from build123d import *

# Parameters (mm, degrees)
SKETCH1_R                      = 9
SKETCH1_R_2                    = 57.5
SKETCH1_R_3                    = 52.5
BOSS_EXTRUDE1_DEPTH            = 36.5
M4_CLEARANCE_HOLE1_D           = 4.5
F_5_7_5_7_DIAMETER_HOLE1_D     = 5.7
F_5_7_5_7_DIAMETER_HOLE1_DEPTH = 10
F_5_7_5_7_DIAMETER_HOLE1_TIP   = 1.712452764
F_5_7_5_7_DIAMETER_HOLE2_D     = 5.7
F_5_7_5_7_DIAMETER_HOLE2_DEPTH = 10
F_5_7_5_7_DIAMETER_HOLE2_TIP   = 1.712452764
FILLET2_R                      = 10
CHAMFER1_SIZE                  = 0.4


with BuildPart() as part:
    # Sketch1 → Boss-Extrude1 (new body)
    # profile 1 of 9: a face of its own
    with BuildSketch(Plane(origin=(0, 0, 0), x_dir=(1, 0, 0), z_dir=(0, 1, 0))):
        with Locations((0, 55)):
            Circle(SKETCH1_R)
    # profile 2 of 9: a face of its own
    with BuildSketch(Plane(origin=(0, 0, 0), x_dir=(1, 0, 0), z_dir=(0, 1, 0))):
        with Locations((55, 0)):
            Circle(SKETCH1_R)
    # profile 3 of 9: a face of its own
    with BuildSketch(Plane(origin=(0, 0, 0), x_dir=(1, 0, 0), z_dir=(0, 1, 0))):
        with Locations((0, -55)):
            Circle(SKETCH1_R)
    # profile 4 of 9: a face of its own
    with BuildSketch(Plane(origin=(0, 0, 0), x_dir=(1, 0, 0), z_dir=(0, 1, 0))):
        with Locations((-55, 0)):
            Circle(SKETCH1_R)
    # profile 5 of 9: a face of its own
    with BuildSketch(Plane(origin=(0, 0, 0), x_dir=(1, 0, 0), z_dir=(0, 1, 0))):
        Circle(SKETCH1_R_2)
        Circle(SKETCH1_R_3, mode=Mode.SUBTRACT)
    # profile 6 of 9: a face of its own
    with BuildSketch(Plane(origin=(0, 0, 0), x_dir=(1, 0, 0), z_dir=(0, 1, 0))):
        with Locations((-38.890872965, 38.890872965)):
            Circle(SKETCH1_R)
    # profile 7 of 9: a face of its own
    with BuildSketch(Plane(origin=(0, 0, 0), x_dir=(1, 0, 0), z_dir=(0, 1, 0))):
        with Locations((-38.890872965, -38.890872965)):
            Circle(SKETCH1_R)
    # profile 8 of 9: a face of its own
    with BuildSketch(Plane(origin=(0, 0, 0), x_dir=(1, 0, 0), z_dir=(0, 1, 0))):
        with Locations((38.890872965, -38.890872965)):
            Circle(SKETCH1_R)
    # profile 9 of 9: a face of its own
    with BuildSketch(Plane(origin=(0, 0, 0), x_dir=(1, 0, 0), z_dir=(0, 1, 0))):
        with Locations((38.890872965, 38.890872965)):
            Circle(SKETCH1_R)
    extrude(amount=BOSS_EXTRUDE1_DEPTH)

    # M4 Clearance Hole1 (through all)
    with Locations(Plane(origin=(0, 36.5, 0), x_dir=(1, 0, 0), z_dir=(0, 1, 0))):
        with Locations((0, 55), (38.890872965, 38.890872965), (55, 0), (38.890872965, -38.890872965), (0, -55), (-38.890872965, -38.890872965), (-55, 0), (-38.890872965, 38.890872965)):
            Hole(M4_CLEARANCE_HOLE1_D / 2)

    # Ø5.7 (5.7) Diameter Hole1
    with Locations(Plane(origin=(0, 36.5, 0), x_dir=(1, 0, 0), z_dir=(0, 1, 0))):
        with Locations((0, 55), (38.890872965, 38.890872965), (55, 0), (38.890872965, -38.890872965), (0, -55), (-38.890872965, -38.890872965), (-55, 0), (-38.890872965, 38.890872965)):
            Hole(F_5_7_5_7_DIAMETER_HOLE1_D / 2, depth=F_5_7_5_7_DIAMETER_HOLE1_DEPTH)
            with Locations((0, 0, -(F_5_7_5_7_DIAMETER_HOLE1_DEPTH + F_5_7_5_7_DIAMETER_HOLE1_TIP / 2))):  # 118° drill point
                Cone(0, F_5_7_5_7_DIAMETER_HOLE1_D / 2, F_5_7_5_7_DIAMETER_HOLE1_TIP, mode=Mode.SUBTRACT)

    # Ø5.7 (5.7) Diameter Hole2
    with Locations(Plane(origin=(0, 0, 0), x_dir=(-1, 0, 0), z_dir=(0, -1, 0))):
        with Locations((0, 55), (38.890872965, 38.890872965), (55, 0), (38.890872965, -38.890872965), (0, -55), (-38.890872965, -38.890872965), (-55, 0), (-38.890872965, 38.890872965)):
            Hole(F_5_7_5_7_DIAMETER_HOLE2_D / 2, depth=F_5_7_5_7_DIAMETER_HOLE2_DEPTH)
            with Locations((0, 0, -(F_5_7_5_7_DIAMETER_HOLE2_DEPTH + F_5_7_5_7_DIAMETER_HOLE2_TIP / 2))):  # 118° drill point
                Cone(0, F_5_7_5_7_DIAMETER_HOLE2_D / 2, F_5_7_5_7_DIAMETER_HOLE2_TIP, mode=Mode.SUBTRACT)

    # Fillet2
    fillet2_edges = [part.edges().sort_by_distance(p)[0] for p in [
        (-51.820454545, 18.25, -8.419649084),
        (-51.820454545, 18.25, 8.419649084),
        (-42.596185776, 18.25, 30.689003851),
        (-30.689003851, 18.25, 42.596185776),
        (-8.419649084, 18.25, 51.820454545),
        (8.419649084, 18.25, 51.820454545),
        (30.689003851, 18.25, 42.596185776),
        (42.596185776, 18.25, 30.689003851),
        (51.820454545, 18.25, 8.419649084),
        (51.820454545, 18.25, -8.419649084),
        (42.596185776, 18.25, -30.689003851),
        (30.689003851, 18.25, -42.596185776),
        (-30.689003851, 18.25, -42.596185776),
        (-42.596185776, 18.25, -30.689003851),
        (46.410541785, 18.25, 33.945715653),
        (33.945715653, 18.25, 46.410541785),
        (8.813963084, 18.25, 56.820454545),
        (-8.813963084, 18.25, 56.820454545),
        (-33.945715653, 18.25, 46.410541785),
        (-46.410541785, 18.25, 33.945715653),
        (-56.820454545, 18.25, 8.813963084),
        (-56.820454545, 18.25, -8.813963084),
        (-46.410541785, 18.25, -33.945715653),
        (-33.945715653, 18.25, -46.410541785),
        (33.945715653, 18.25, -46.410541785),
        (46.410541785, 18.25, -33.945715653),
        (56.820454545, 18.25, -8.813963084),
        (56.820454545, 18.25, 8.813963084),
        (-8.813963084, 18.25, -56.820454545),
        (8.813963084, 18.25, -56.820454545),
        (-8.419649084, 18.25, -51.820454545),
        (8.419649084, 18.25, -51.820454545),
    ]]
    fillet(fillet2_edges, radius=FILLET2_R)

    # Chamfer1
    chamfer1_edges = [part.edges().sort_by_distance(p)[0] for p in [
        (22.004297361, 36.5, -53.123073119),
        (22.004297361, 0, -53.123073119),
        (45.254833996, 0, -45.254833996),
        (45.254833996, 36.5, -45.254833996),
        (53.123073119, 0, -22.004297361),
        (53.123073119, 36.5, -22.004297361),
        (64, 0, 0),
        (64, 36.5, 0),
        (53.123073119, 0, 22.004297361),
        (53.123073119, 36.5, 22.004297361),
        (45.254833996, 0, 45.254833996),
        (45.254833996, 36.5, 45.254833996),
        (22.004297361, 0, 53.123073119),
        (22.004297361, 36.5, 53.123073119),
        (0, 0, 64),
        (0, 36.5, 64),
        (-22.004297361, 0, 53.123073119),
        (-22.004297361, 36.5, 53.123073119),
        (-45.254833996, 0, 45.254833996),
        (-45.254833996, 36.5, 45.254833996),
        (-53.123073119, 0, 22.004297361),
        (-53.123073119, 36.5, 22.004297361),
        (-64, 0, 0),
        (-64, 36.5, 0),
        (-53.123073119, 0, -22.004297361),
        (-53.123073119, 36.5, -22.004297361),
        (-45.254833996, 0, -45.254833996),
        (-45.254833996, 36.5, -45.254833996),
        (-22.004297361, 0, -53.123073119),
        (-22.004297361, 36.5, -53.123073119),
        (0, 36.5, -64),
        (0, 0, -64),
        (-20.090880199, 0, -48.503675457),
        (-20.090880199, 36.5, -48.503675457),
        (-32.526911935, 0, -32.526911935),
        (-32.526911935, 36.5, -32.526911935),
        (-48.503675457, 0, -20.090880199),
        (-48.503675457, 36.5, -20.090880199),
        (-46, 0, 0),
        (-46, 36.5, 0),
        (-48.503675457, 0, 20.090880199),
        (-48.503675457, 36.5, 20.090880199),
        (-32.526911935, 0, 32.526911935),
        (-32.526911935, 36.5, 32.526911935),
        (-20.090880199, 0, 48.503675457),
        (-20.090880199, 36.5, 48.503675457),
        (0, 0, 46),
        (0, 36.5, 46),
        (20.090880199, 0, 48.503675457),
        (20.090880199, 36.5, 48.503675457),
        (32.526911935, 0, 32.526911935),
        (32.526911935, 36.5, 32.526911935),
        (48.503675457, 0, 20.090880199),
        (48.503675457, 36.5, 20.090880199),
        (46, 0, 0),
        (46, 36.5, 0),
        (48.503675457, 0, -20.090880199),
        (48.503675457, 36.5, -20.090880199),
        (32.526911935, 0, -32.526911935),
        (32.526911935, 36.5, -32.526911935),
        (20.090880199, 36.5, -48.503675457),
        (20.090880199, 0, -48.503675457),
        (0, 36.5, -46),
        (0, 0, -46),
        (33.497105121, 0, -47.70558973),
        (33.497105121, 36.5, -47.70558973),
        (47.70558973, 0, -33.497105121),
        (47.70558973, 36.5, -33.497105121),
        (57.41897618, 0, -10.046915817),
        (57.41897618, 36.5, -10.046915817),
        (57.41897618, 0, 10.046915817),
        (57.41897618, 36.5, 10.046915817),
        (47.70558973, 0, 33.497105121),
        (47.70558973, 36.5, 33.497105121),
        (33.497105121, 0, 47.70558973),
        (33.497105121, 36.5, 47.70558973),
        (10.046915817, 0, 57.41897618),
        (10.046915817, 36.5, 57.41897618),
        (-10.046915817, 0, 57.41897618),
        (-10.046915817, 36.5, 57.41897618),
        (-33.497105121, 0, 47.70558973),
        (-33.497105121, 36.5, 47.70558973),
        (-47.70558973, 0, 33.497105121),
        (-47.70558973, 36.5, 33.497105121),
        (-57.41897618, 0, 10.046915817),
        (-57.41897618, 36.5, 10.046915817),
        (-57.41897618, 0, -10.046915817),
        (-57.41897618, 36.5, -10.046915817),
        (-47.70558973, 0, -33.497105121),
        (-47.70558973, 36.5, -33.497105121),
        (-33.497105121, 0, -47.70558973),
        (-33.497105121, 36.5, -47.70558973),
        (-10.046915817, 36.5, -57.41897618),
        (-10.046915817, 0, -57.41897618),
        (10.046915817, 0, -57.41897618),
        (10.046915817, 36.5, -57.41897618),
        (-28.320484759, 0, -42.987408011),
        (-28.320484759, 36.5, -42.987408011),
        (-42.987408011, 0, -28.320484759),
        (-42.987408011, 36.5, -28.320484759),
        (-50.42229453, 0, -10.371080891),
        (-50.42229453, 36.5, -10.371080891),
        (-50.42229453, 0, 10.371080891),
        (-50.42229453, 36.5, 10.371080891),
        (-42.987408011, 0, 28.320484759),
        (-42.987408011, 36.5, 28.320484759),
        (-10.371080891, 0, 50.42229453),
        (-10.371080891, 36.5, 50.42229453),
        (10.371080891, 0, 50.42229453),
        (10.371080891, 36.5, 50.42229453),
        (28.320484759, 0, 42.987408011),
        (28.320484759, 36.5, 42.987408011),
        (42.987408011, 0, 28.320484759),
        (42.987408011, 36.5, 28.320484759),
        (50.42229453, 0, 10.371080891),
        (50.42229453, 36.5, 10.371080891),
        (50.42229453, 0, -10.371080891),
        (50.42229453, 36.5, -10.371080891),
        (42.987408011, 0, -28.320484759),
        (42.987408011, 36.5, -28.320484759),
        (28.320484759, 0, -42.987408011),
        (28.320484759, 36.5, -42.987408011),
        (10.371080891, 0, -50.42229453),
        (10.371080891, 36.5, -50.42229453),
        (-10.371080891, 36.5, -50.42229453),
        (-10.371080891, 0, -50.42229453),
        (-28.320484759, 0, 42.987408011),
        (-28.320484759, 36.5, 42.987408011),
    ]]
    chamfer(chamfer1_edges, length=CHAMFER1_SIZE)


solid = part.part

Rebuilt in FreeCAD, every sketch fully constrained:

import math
import FreeCAD as App
import Part
import Sketcher

V = App.Vector
Q = App.Units.Quantity


def edges_at(feature, points):
    """Names of the edges that pass closest to the given points."""
    edges = feature.Shape.Edges
    near = lambda p: min(range(len(edges)), key=lambda i: edges[i].distToShape(Part.Vertex(*p))[0])
    return sorted({f"Edge{near(p) + 1}" for p in points})

doc = App.newDocument("Part")
body = doc.addObject("PartDesign::Body", "Body")

# Sketch on XZ plane
sketch1 = body.newObject("Sketcher::SketchObject", "Sketch")
sketch1.AttachmentSupport = (doc.getObject("XZ_Plane"), [""])
sketch1.MapMode = "FlatFace"
sketch1.addGeometry(Part.ArcOfCircle(Part.Circle(V(0, 0, 0), V(0, 0, 1), 58), math.radians(-81), math.radians(-54)), False)
sketch1.addGeometry(Part.ArcOfCircle(Part.Circle(V(0, -55, 0), V(0, 0, 1), 9), math.radians(-168), math.radians(-12)), False)
sketch1.addGeometry(Part.ArcOfCircle(Part.Circle(V(0, 0, 0), V(0, 0, 1), 58), math.radians(-126), math.radians(-99)), False)
sketch1.addGeometry(Part.ArcOfCircle(Part.Circle(V(-39, -39, 0), V(0, 0, 1), 9), math.radians(147), math.radians(303)), False)
sketch1.addGeometry(Part.ArcOfCircle(Part.Circle(V(0, 0, 0), V(0, 0, 1), 58), math.radians(-171), math.radians(-144)), False)
sketch1.addGeometry(Part.ArcOfCircle(Part.Circle(V(-55, 0, 0), V(0, 0, 1), 9), math.radians(102), math.radians(258)), False)
sketch1.addGeometry(Part.ArcOfCircle(Part.Circle(V(0, 0, 0), V(0, 0, 1), 58), math.radians(144), math.radians(171)), False)
sketch1.addGeometry(Part.ArcOfCircle(Part.Circle(V(-39, 39, 0), V(0, 0, 1), 9), math.radians(57), math.radians(213)), False)
sketch1.addGeometry(Part.ArcOfCircle(Part.Circle(V(0, 0, 0), V(0, 0, 1), 58), math.radians(99), math.radians(126)), False)
sketch1.addGeometry(Part.ArcOfCircle(Part.Circle(V(0, 55, 0), V(0, 0, 1), 9), math.radians(12), math.radians(168)), False)
sketch1.addGeometry(Part.ArcOfCircle(Part.Circle(V(0, 0, 0), V(0, 0, 1), 58), math.radians(54), math.radians(81)), False)
sketch1.addGeometry(Part.ArcOfCircle(Part.Circle(V(39, 39, 0), V(0, 0, 1), 9), math.radians(-33), math.radians(123)), False)
sketch1.addGeometry(Part.ArcOfCircle(Part.Circle(V(0, 0, 0), V(0, 0, 1), 58), math.radians(9), math.radians(36)), False)
sketch1.addGeometry(Part.ArcOfCircle(Part.Circle(V(55, 0, 0), V(0, 0, 1), 9), math.radians(-78), math.radians(78)), False)
sketch1.addGeometry(Part.ArcOfCircle(Part.Circle(V(0, 0, 0), V(0, 0, 1), 58), math.radians(-36), math.radians(-9)), False)
sketch1.addGeometry(Part.ArcOfCircle(Part.Circle(V(39, -39, 0), V(0, 0, 1), 9), math.radians(-123), math.radians(33)), False)
sketch1.addGeometry(Part.ArcOfCircle(Part.Circle(V(0, 0, 0), V(0, 0, 1), 52), math.radians(-81), math.radians(-54)), False)
sketch1.addGeometry(Part.ArcOfCircle(Part.Circle(V(39, -39, 0), V(0, 0, 1), 9), math.radians(66), math.radians(204)), False)
sketch1.addGeometry(Part.ArcOfCircle(Part.Circle(V(0, 0, 0), V(0, 0, 1), 52), math.radians(-36), math.radians(-9)), False)
sketch1.addGeometry(Part.ArcOfCircle(Part.Circle(V(55, 0, 0), V(0, 0, 1), 9), math.radians(111), math.radians(249)), False)
sketch1.addGeometry(Part.ArcOfCircle(Part.Circle(V(0, 0, 0), V(0, 0, 1), 52), math.radians(9), math.radians(36)), False)
sketch1.addGeometry(Part.ArcOfCircle(Part.Circle(V(39, 39, 0), V(0, 0, 1), 9), math.radians(156), math.radians(294)), False)
sketch1.addGeometry(Part.ArcOfCircle(Part.Circle(V(0, 0, 0), V(0, 0, 1), 52), math.radians(54), math.radians(81)), False)
sketch1.addGeometry(Part.ArcOfCircle(Part.Circle(V(0, 55, 0), V(0, 0, 1), 9), math.radians(-159), math.radians(-21)), False)
sketch1.addGeometry(Part.ArcOfCircle(Part.Circle(V(0, 0, 0), V(0, 0, 1), 52), math.radians(99), math.radians(126)), False)
sketch1.addGeometry(Part.ArcOfCircle(Part.Circle(V(-39, 39, 0), V(0, 0, 1), 9), math.radians(-114), math.radians(24)), False)
sketch1.addGeometry(Part.ArcOfCircle(Part.Circle(V(0, 0, 0), V(0, 0, 1), 52), math.radians(144), math.radians(171)), False)
sketch1.addGeometry(Part.ArcOfCircle(Part.Circle(V(-55, 0, 0), V(0, 0, 1), 9), math.radians(-69), math.radians(69)), False)
sketch1.addGeometry(Part.ArcOfCircle(Part.Circle(V(0, 0, 0), V(0, 0, 1), 52), math.radians(-171), math.radians(-144)), False)
sketch1.addGeometry(Part.ArcOfCircle(Part.Circle(V(-39, -39, 0), V(0, 0, 1), 9), math.radians(-24), math.radians(114)), False)
sketch1.addGeometry(Part.ArcOfCircle(Part.Circle(V(0, 0, 0), V(0, 0, 1), 52), math.radians(-126), math.radians(-99)), False)
sketch1.addGeometry(Part.ArcOfCircle(Part.Circle(V(0, -55, 0), V(0, 0, 1), 9), math.radians(21), math.radians(159)), False)
sketch1.addConstraint(Sketcher.Constraint("Coincident", 0, 1, 1, 2))
sketch1.addConstraint(Sketcher.Constraint("Coincident", 1, 1, 2, 2))
sketch1.addConstraint(Sketcher.Constraint("Coincident", 2, 1, 3, 2))
sketch1.addConstraint(Sketcher.Constraint("Coincident", 3, 1, 4, 2))
sketch1.addConstraint(Sketcher.Constraint("Coincident", 4, 1, 5, 2))
sketch1.addConstraint(Sketcher.Constraint("Coincident", 5, 1, 6, 2))
sketch1.addConstraint(Sketcher.Constraint("Coincident", 6, 1, 7, 2))
sketch1.addConstraint(Sketcher.Constraint("Coincident", 7, 1, 8, 2))
sketch1.addConstraint(Sketcher.Constraint("Coincident", 8, 1, 9, 2))
sketch1.addConstraint(Sketcher.Constraint("Coincident", 9, 1, 10, 2))
sketch1.addConstraint(Sketcher.Constraint("Coincident", 10, 1, 11, 2))
sketch1.addConstraint(Sketcher.Constraint("Coincident", 11, 1, 12, 2))
sketch1.addConstraint(Sketcher.Constraint("Coincident", 12, 1, 13, 2))
sketch1.addConstraint(Sketcher.Constraint("Coincident", 13, 1, 14, 2))
sketch1.addConstraint(Sketcher.Constraint("Coincident", 14, 1, 15, 2))
sketch1.addConstraint(Sketcher.Constraint("Coincident", 15, 1, 0, 2))
sketch1.addConstraint(Sketcher.Constraint("Coincident", 16, 2, 17, 2))
sketch1.addConstraint(Sketcher.Constraint("Coincident", 17, 1, 18, 1))
sketch1.addConstraint(Sketcher.Constraint("Coincident", 18, 2, 19, 2))
sketch1.addConstraint(Sketcher.Constraint("Coincident", 19, 1, 20, 1))
sketch1.addConstraint(Sketcher.Constraint("Coincident", 20, 2, 21, 2))
sketch1.addConstraint(Sketcher.Constraint("Coincident", 21, 1, 22, 1))
sketch1.addConstraint(Sketcher.Constraint("Coincident", 22, 2, 23, 2))
sketch1.addConstraint(Sketcher.Constraint("Coincident", 23, 1, 24, 1))
sketch1.addConstraint(Sketcher.Constraint("Coincident", 24, 2, 25, 2))
sketch1.addConstraint(Sketcher.Constraint("Coincident", 25, 1, 26, 1))
sketch1.addConstraint(Sketcher.Constraint("Coincident", 26, 2, 27, 2))
sketch1.addConstraint(Sketcher.Constraint("Coincident", 27, 1, 28, 1))
sketch1.addConstraint(Sketcher.Constraint("Coincident", 28, 2, 29, 2))
sketch1.addConstraint(Sketcher.Constraint("Coincident", 29, 1, 30, 1))
sketch1.addConstraint(Sketcher.Constraint("Coincident", 30, 2, 31, 2))
sketch1.addConstraint(Sketcher.Constraint("Coincident", 31, 1, 16, 1))
sketch1.addConstraint(Sketcher.Constraint("Coincident", 0, 3, -1, 1))
sketch1.addConstraint(Sketcher.Constraint("Coincident", 2, 3, -1, 1))
sketch1.addConstraint(Sketcher.Constraint("Coincident", 4, 3, -1, 1))
sketch1.addConstraint(Sketcher.Constraint("Coincident", 6, 3, -1, 1))
sketch1.addConstraint(Sketcher.Constraint("Coincident", 8, 3, -1, 1))
sketch1.addConstraint(Sketcher.Constraint("Coincident", 10, 3, -1, 1))
sketch1.addConstraint(Sketcher.Constraint("Coincident", 12, 3, -1, 1))
sketch1.addConstraint(Sketcher.Constraint("Coincident", 14, 3, -1, 1))
sketch1.addConstraint(Sketcher.Constraint("Coincident", 16, 3, -1, 1))
sketch1.addConstraint(Sketcher.Constraint("Coincident", 18, 3, -1, 1))
sketch1.addConstraint(Sketcher.Constraint("Coincident", 20, 3, -1, 1))
sketch1.addConstraint(Sketcher.Constraint("Coincident", 22, 3, -1, 1))
sketch1.addConstraint(Sketcher.Constraint("Coincident", 24, 3, -1, 1))
sketch1.addConstraint(Sketcher.Constraint("Coincident", 26, 3, -1, 1))
sketch1.addConstraint(Sketcher.Constraint("Coincident", 28, 3, -1, 1))
sketch1.addConstraint(Sketcher.Constraint("Coincident", 30, 3, -1, 1))
sketch1.addConstraint(Sketcher.Constraint("Coincident", 17, 3, 15, 3))
sketch1.addConstraint(Sketcher.Constraint("Coincident", 19, 3, 13, 3))
sketch1.addConstraint(Sketcher.Constraint("Coincident", 21, 3, 11, 3))
sketch1.addConstraint(Sketcher.Constraint("Coincident", 23, 3, 9, 3))
sketch1.addConstraint(Sketcher.Constraint("Coincident", 25, 3, 7, 3))
sketch1.addConstraint(Sketcher.Constraint("Coincident", 27, 3, 5, 3))
sketch1.addConstraint(Sketcher.Constraint("Coincident", 29, 3, 3, 3))
sketch1.addConstraint(Sketcher.Constraint("Coincident", 31, 3, 1, 3))
sketch1.addConstraint(Sketcher.Constraint("Equal", 0, 2))
sketch1.addConstraint(Sketcher.Constraint("Equal", 1, 3))
sketch1.addConstraint(Sketcher.Constraint("Equal", 2, 4))
sketch1.addConstraint(Sketcher.Constraint("Equal", 3, 5))
sketch1.addConstraint(Sketcher.Constraint("Equal", 4, 6))
sketch1.addConstraint(Sketcher.Constraint("Equal", 5, 7))
sketch1.addConstraint(Sketcher.Constraint("Equal", 6, 8))
sketch1.addConstraint(Sketcher.Constraint("Equal", 7, 9))
sketch1.addConstraint(Sketcher.Constraint("Equal", 8, 10))
sketch1.addConstraint(Sketcher.Constraint("Equal", 9, 11))
sketch1.addConstraint(Sketcher.Constraint("Equal", 10, 12))
sketch1.addConstraint(Sketcher.Constraint("Equal", 11, 13))
sketch1.addConstraint(Sketcher.Constraint("Equal", 12, 14))
sketch1.addConstraint(Sketcher.Constraint("Equal", 13, 15))
sketch1.addConstraint(Sketcher.Constraint("Equal", 15, 17))
sketch1.addConstraint(Sketcher.Constraint("Equal", 16, 18))
sketch1.addConstraint(Sketcher.Constraint("Equal", 17, 19))
sketch1.addConstraint(Sketcher.Constraint("Equal", 18, 20))
sketch1.addConstraint(Sketcher.Constraint("Equal", 19, 21))
sketch1.addConstraint(Sketcher.Constraint("Equal", 20, 22))
sketch1.addConstraint(Sketcher.Constraint("Equal", 21, 23))
sketch1.addConstraint(Sketcher.Constraint("Equal", 22, 24))
sketch1.addConstraint(Sketcher.Constraint("Equal", 23, 25))
sketch1.addConstraint(Sketcher.Constraint("Equal", 24, 26))
sketch1.addConstraint(Sketcher.Constraint("Equal", 25, 27))
sketch1.addConstraint(Sketcher.Constraint("Equal", 26, 28))
sketch1.addConstraint(Sketcher.Constraint("Equal", 27, 29))
sketch1.addConstraint(Sketcher.Constraint("Equal", 28, 30))
sketch1.addConstraint(Sketcher.Constraint("Equal", 29, 31))
sketch1.addConstraint(Sketcher.Constraint("Symmetric", 1, 3, 9, 3, -1, 1))
sketch1.addConstraint(Sketcher.Constraint("Symmetric", 3, 3, 11, 3, -1, 1))
sketch1.addConstraint(Sketcher.Constraint("Symmetric", 5, 3, 13, 3, -1, 1))
sketch1.addConstraint(Sketcher.Constraint("Symmetric", 7, 3, 15, 3, -1, 1))
sketch1.addConstraint(Sketcher.Constraint("Symmetric", 7, 3, 11, 3, -2))
sketch1.addConstraint(Sketcher.Constraint("PointOnObject", 1, 3, -2))
sketch1.addConstraint(Sketcher.Constraint("PointOnObject", 5, 3, -1))
sketch1.addConstraint(Sketcher.Constraint("Radius", 1, Q("9 mm")))
sketch1.addConstraint(Sketcher.Constraint("Radius", 0, Q("57.5 mm")))
sketch1.addConstraint(Sketcher.Constraint("Radius", 16, Q("52.5 mm")))
sketch1.addConstraint(Sketcher.Constraint("DistanceY", 1, 3, -1, 1, Q("55 mm")))
sketch1.addConstraint(Sketcher.Constraint("DistanceX", 5, 3, -1, 1, Q("55 mm")))
sketch1.addConstraint(Sketcher.Constraint("DistanceY", 2, 1, -1, 1, Q("46.410542 mm")))
sketch1.addConstraint(Sketcher.Constraint("DistanceX", 3, 1, -1, 1, Q("46.410542 mm")))
pad1 = body.newObject("PartDesign::Pad", "Pad")
pad1.Profile = sketch1
pad1.Length = 36.5
pad1.Reversed = True

# Sketch on XZ plane
sketch2 = body.newObject("Sketcher::SketchObject", "Sketch001")
sketch2.AttachmentSupport = (doc.getObject("XZ_Plane"), [""])
sketch2.MapMode = "FlatFace"
sketch2.AttachmentOffset = App.Placement(V(0, 0, -36.5), App.Rotation())
sketch2.addGeometry(Part.Circle(V(0, -55, 0), V(0, 0, 1), 2.2), False)
sketch2.addGeometry(Part.Circle(V(38.9, -38.9, 0), V(0, 0, 1), 2.2), False)
sketch2.addGeometry(Part.Circle(V(55, 0, 0), V(0, 0, 1), 2.2), False)
sketch2.addGeometry(Part.Circle(V(38.9, 38.9, 0), V(0, 0, 1), 2.2), False)
sketch2.addGeometry(Part.Circle(V(0, 55, 0), V(0, 0, 1), 2.2), False)
sketch2.addGeometry(Part.Circle(V(-38.9, 38.9, 0), V(0, 0, 1), 2.2), False)
sketch2.addGeometry(Part.Circle(V(-55, 0, 0), V(0, 0, 1), 2.2), False)
sketch2.addGeometry(Part.Circle(V(-38.9, -38.9, 0), V(0, 0, 1), 2.2), False)
sketch2.addConstraint(Sketcher.Constraint("Equal", 0, 1))
sketch2.addConstraint(Sketcher.Constraint("Equal", 1, 2))
sketch2.addConstraint(Sketcher.Constraint("Equal", 2, 3))
sketch2.addConstraint(Sketcher.Constraint("Equal", 3, 4))
sketch2.addConstraint(Sketcher.Constraint("Equal", 4, 5))
sketch2.addConstraint(Sketcher.Constraint("Equal", 5, 6))
sketch2.addConstraint(Sketcher.Constraint("Equal", 6, 7))
sketch2.addConstraint(Sketcher.Constraint("Symmetric", 0, 3, 4, 3, -1, 1))
sketch2.addConstraint(Sketcher.Constraint("Symmetric", 1, 3, 5, 3, -1, 1))
sketch2.addConstraint(Sketcher.Constraint("Symmetric", 2, 3, 6, 3, -1, 1))
sketch2.addConstraint(Sketcher.Constraint("Symmetric", 3, 3, 7, 3, -1, 1))
sketch2.addConstraint(Sketcher.Constraint("Symmetric", 3, 3, 5, 3, -2))
sketch2.addConstraint(Sketcher.Constraint("PointOnObject", 0, 3, -2))
sketch2.addConstraint(Sketcher.Constraint("PointOnObject", 2, 3, -1))
sketch2.addConstraint(Sketcher.Constraint("Diameter", 0, Q("4.5 mm")))
sketch2.addConstraint(Sketcher.Constraint("DistanceY", 0, 3, -1, 1, Q("55 mm")))
sketch2.addConstraint(Sketcher.Constraint("DistanceX", -1, 1, 2, 3, Q("55 mm")))
sketch2.addConstraint(Sketcher.Constraint("DistanceX", -1, 1, 1, 3, Q("38.890873 mm")))
sketch2.addConstraint(Sketcher.Constraint("DistanceY", 1, 3, -1, 1, Q("38.890873 mm")))
doc.recompute()
hole = body.newObject("PartDesign::Hole", "Hole")
hole.Profile = sketch2
hole.ThreadType = "None"
hole.Diameter = 4.5
hole.DepthType = "ThroughAll"
hole.Reversed = True

# Sketch on XZ plane
sketch3 = body.newObject("Sketcher::SketchObject", "Sketch002")
sketch3.AttachmentSupport = (doc.getObject("XZ_Plane"), [""])
sketch3.MapMode = "FlatFace"
sketch3.AttachmentOffset = App.Placement(V(0, 0, -36.5), App.Rotation())
sketch3.addGeometry(Part.Circle(V(0, -55, 0), V(0, 0, 1), 2.9), False)
sketch3.addGeometry(Part.Circle(V(38.9, -38.9, 0), V(0, 0, 1), 2.9), False)
sketch3.addGeometry(Part.Circle(V(55, 0, 0), V(0, 0, 1), 2.9), False)
sketch3.addGeometry(Part.Circle(V(38.9, 38.9, 0), V(0, 0, 1), 2.9), False)
sketch3.addGeometry(Part.Circle(V(0, 55, 0), V(0, 0, 1), 2.9), False)
sketch3.addGeometry(Part.Circle(V(-38.9, 38.9, 0), V(0, 0, 1), 2.9), False)
sketch3.addGeometry(Part.Circle(V(-55, 0, 0), V(0, 0, 1), 2.9), False)
sketch3.addGeometry(Part.Circle(V(-38.9, -38.9, 0), V(0, 0, 1), 2.9), False)
sketch3.addConstraint(Sketcher.Constraint("Equal", 0, 1))
sketch3.addConstraint(Sketcher.Constraint("Equal", 1, 2))
sketch3.addConstraint(Sketcher.Constraint("Equal", 2, 3))
sketch3.addConstraint(Sketcher.Constraint("Equal", 3, 4))
sketch3.addConstraint(Sketcher.Constraint("Equal", 4, 5))
sketch3.addConstraint(Sketcher.Constraint("Equal", 5, 6))
sketch3.addConstraint(Sketcher.Constraint("Equal", 6, 7))
sketch3.addConstraint(Sketcher.Constraint("Symmetric", 0, 3, 4, 3, -1, 1))
sketch3.addConstraint(Sketcher.Constraint("Symmetric", 1, 3, 5, 3, -1, 1))
sketch3.addConstraint(Sketcher.Constraint("Symmetric", 2, 3, 6, 3, -1, 1))
sketch3.addConstraint(Sketcher.Constraint("Symmetric", 3, 3, 7, 3, -1, 1))
sketch3.addConstraint(Sketcher.Constraint("Symmetric", 3, 3, 5, 3, -2))
sketch3.addConstraint(Sketcher.Constraint("PointOnObject", 0, 3, -2))
sketch3.addConstraint(Sketcher.Constraint("PointOnObject", 2, 3, -1))
sketch3.addConstraint(Sketcher.Constraint("Diameter", 0, Q("5.7 mm")))
sketch3.addConstraint(Sketcher.Constraint("DistanceY", 0, 3, -1, 1, Q("55 mm")))
sketch3.addConstraint(Sketcher.Constraint("DistanceX", -1, 1, 2, 3, Q("55 mm")))
sketch3.addConstraint(Sketcher.Constraint("DistanceX", -1, 1, 1, 3, Q("38.890873 mm")))
sketch3.addConstraint(Sketcher.Constraint("DistanceY", 1, 3, -1, 1, Q("38.890873 mm")))
doc.recompute()
hole2 = body.newObject("PartDesign::Hole", "Hole001")
hole2.Profile = sketch3
hole2.ThreadType = "None"
hole2.Diameter = 5.7
hole2.DepthType = "Dimension"
hole2.Depth = 10
hole2.DrillPoint = "Angled"
hole2.DrillPointAngle = 118
hole2.Reversed = True

# Sketch on XZ plane
sketch4 = body.newObject("Sketcher::SketchObject", "Sketch003")
sketch4.AttachmentSupport = (doc.getObject("XZ_Plane"), [""])
sketch4.MapMode = "FlatFace"
sketch4.addGeometry(Part.Circle(V(0, -55, 0), V(0, 0, 1), 2.9), False)
sketch4.addGeometry(Part.Circle(V(-38.9, -38.9, 0), V(0, 0, 1), 2.9), False)
sketch4.addGeometry(Part.Circle(V(-55, 0, 0), V(0, 0, 1), 2.9), False)
sketch4.addGeometry(Part.Circle(V(-38.9, 38.9, 0), V(0, 0, 1), 2.9), False)
sketch4.addGeometry(Part.Circle(V(0, 55, 0), V(0, 0, 1), 2.9), False)
sketch4.addGeometry(Part.Circle(V(38.9, 38.9, 0), V(0, 0, 1), 2.9), False)
sketch4.addGeometry(Part.Circle(V(55, 0, 0), V(0, 0, 1), 2.9), False)
sketch4.addGeometry(Part.Circle(V(38.9, -38.9, 0), V(0, 0, 1), 2.9), False)
sketch4.addConstraint(Sketcher.Constraint("Equal", 0, 1))
sketch4.addConstraint(Sketcher.Constraint("Equal", 1, 2))
sketch4.addConstraint(Sketcher.Constraint("Equal", 2, 3))
sketch4.addConstraint(Sketcher.Constraint("Equal", 3, 4))
sketch4.addConstraint(Sketcher.Constraint("Equal", 4, 5))
sketch4.addConstraint(Sketcher.Constraint("Equal", 5, 6))
sketch4.addConstraint(Sketcher.Constraint("Equal", 6, 7))
sketch4.addConstraint(Sketcher.Constraint("Symmetric", 0, 3, 4, 3, -1, 1))
sketch4.addConstraint(Sketcher.Constraint("Symmetric", 1, 3, 5, 3, -1, 1))
sketch4.addConstraint(Sketcher.Constraint("Symmetric", 2, 3, 6, 3, -1, 1))
sketch4.addConstraint(Sketcher.Constraint("Symmetric", 3, 3, 7, 3, -1, 1))
sketch4.addConstraint(Sketcher.Constraint("Symmetric", 3, 3, 5, 3, -2))
sketch4.addConstraint(Sketcher.Constraint("PointOnObject", 0, 3, -2))
sketch4.addConstraint(Sketcher.Constraint("PointOnObject", 2, 3, -1))
sketch4.addConstraint(Sketcher.Constraint("Diameter", 0, Q("5.7 mm")))
sketch4.addConstraint(Sketcher.Constraint("DistanceY", 0, 3, -1, 1, Q("55 mm")))
sketch4.addConstraint(Sketcher.Constraint("DistanceX", 2, 3, -1, 1, Q("55 mm")))
sketch4.addConstraint(Sketcher.Constraint("DistanceX", 1, 3, -1, 1, Q("38.890873 mm")))
sketch4.addConstraint(Sketcher.Constraint("DistanceY", 1, 3, -1, 1, Q("38.890873 mm")))
doc.recompute()
hole3 = body.newObject("PartDesign::Hole", "Hole002")
hole3.Profile = sketch4
hole3.ThreadType = "None"
hole3.Diameter = 5.7
hole3.DepthType = "Dimension"
hole3.Depth = 10
hole3.DrillPoint = "Angled"
hole3.DrillPointAngle = 118
doc.recompute()

fillet = body.newObject("PartDesign::Fillet", "Fillet")
fillet.Base = (hole3, edges_at(hole3, [
    (-51.82, 18.25, -8.42),
    (-51.82, 18.25, 8.42),
    (-42.596, 18.25, 30.689),
    (-30.689, 18.25, 42.596),
    (-8.42, 18.25, 51.82),
    (8.42, 18.25, 51.82),
    (30.689, 18.25, 42.596),
    (42.596, 18.25, 30.689),
    (51.82, 18.25, 8.42),
    (51.82, 18.25, -8.42),
    (42.596, 18.25, -30.689),
    (30.689, 18.25, -42.596),
    (-30.689, 18.25, -42.596),
    (-42.596, 18.25, -30.689),
    (46.411, 18.25, 33.946),
    (33.946, 18.25, 46.411),
    (8.814, 18.25, 56.82),
    (-8.814, 18.25, 56.82),
    (-33.946, 18.25, 46.411),
    (-46.411, 18.25, 33.946),
    (-56.82, 18.25, 8.814),
    (-56.82, 18.25, -8.814),
    (-46.411, 18.25, -33.946),
    (-33.946, 18.25, -46.411),
    (33.946, 18.25, -46.411),
    (46.411, 18.25, -33.946),
    (56.82, 18.25, -8.814),
    (56.82, 18.25, 8.814),
    (-8.814, 18.25, -56.82),
    (8.814, 18.25, -56.82),
    (-8.42, 18.25, -51.82),
    (8.42, 18.25, -51.82),
]))
fillet.Radius = 10
doc.recompute()

chamfer = body.newObject("PartDesign::Chamfer", "Chamfer")
chamfer.Base = (fillet, edges_at(fillet, [
    (22.004, 36.5, -53.123),
    (22.004, 0, -53.123),
    (45.255, 0, -45.255),
    (45.255, 36.5, -45.255),
    (53.123, 0, -22.004),
    (53.123, 36.5, -22.004),
    (64, 0, 0),
    (64, 36.5, 0),
    (53.123, 0, 22.004),
    (53.123, 36.5, 22.004),
    (45.255, 0, 45.255),
    (45.255, 36.5, 45.255),
    (22.004, 0, 53.123),
    (22.004, 36.5, 53.123),
    (0, 0, 64),
    (0, 36.5, 64),
    (-22.004, 0, 53.123),
    (-22.004, 36.5, 53.123),
    (-45.255, 0, 45.255),
    (-45.255, 36.5, 45.255),
    (-53.123, 0, 22.004),
    (-53.123, 36.5, 22.004),
    (-64, 0, 0),
    (-64, 36.5, 0),
    (-53.123, 0, -22.004),
    (-53.123, 36.5, -22.004),
    (-45.255, 0, -45.255),
    (-45.255, 36.5, -45.255),
    (-22.004, 0, -53.123),
    (-22.004, 36.5, -53.123),
    (0, 36.5, -64),
    (0, 0, -64),
    (-20.091, 0, -48.504),
    (-20.091, 36.5, -48.504),
    (-32.527, 0, -32.527),
    (-32.527, 36.5, -32.527),
    (-48.504, 0, -20.091),
    (-48.504, 36.5, -20.091),
    (-46, 0, 0),
    (-46, 36.5, 0),
    (-48.504, 0, 20.091),
    (-48.504, 36.5, 20.091),
    (-32.527, 0, 32.527),
    (-32.527, 36.5, 32.527),
    (-20.091, 0, 48.504),
    (-20.091, 36.5, 48.504),
    (0, 0, 46),
    (0, 36.5, 46),
    (20.091, 0, 48.504),
    (20.091, 36.5, 48.504),
    (32.527, 0, 32.527),
    (32.527, 36.5, 32.527),
    (48.504, 0, 20.091),
    (48.504, 36.5, 20.091),
    (46, 0, 0),
    (46, 36.5, 0),
    (48.504, 0, -20.091),
    (48.504, 36.5, -20.091),
    (32.527, 0, -32.527),
    (32.527, 36.5, -32.527),
    (20.091, 36.5, -48.504),
    (20.091, 0, -48.504),
    (0, 36.5, -46),
    (0, 0, -46),
    (33.497, 0, -47.706),
    (33.497, 36.5, -47.706),
    (47.706, 0, -33.497),
    (47.706, 36.5, -33.497),
    (57.419, 0, -10.047),
    (57.419, 36.5, -10.047),
    (57.419, 0, 10.047),
    (57.419, 36.5, 10.047),
    (47.706, 0, 33.497),
    (47.706, 36.5, 33.497),
    (33.497, 0, 47.706),
    (33.497, 36.5, 47.706),
    (10.047, 0, 57.419),
    (10.047, 36.5, 57.419),
    (-10.047, 0, 57.419),
    (-10.047, 36.5, 57.419),
    (-33.497, 0, 47.706),
    (-33.497, 36.5, 47.706),
    (-47.706, 0, 33.497),
    (-47.706, 36.5, 33.497),
    (-57.419, 0, 10.047),
    (-57.419, 36.5, 10.047),
    (-57.419, 0, -10.047),
    (-57.419, 36.5, -10.047),
    (-47.706, 0, -33.497),
    (-47.706, 36.5, -33.497),
    (-33.497, 0, -47.706),
    (-33.497, 36.5, -47.706),
    (-10.047, 36.5, -57.419),
    (-10.047, 0, -57.419),
    (10.047, 0, -57.419),
    (10.047, 36.5, -57.419),
    (-28.32, 0, -42.987),
    (-28.32, 36.5, -42.987),
    (-42.987, 0, -28.32),
    (-42.987, 36.5, -28.32),
    (-50.422, 0, -10.371),
    (-50.422, 36.5, -10.371),
    (-50.422, 0, 10.371),
    (-50.422, 36.5, 10.371),
    (-42.987, 0, 28.32),
    (-42.987, 36.5, 28.32),
    (-10.371, 0, 50.422),
    (-10.371, 36.5, 50.422),
    (10.371, 0, 50.422),
    (10.371, 36.5, 50.422),
    (28.32, 0, 42.987),
    (28.32, 36.5, 42.987),
    (42.987, 0, 28.32),
    (42.987, 36.5, 28.32),
    (50.422, 0, 10.371),
    (50.422, 36.5, 10.371),
    (50.422, 0, -10.371),
    (50.422, 36.5, -10.371),
    (42.987, 0, -28.32),
    (42.987, 36.5, -28.32),
    (28.32, 0, -42.987),
    (28.32, 36.5, -42.987),
    (10.371, 0, -50.422),
    (10.371, 36.5, -50.422),
    (-10.371, 36.5, -50.422),
    (-10.371, 0, -50.422),
    (-28.32, 0, 42.987),
    (-28.32, 36.5, 42.987),
]))
chamfer.Size = 0.4

doc.recompute()
